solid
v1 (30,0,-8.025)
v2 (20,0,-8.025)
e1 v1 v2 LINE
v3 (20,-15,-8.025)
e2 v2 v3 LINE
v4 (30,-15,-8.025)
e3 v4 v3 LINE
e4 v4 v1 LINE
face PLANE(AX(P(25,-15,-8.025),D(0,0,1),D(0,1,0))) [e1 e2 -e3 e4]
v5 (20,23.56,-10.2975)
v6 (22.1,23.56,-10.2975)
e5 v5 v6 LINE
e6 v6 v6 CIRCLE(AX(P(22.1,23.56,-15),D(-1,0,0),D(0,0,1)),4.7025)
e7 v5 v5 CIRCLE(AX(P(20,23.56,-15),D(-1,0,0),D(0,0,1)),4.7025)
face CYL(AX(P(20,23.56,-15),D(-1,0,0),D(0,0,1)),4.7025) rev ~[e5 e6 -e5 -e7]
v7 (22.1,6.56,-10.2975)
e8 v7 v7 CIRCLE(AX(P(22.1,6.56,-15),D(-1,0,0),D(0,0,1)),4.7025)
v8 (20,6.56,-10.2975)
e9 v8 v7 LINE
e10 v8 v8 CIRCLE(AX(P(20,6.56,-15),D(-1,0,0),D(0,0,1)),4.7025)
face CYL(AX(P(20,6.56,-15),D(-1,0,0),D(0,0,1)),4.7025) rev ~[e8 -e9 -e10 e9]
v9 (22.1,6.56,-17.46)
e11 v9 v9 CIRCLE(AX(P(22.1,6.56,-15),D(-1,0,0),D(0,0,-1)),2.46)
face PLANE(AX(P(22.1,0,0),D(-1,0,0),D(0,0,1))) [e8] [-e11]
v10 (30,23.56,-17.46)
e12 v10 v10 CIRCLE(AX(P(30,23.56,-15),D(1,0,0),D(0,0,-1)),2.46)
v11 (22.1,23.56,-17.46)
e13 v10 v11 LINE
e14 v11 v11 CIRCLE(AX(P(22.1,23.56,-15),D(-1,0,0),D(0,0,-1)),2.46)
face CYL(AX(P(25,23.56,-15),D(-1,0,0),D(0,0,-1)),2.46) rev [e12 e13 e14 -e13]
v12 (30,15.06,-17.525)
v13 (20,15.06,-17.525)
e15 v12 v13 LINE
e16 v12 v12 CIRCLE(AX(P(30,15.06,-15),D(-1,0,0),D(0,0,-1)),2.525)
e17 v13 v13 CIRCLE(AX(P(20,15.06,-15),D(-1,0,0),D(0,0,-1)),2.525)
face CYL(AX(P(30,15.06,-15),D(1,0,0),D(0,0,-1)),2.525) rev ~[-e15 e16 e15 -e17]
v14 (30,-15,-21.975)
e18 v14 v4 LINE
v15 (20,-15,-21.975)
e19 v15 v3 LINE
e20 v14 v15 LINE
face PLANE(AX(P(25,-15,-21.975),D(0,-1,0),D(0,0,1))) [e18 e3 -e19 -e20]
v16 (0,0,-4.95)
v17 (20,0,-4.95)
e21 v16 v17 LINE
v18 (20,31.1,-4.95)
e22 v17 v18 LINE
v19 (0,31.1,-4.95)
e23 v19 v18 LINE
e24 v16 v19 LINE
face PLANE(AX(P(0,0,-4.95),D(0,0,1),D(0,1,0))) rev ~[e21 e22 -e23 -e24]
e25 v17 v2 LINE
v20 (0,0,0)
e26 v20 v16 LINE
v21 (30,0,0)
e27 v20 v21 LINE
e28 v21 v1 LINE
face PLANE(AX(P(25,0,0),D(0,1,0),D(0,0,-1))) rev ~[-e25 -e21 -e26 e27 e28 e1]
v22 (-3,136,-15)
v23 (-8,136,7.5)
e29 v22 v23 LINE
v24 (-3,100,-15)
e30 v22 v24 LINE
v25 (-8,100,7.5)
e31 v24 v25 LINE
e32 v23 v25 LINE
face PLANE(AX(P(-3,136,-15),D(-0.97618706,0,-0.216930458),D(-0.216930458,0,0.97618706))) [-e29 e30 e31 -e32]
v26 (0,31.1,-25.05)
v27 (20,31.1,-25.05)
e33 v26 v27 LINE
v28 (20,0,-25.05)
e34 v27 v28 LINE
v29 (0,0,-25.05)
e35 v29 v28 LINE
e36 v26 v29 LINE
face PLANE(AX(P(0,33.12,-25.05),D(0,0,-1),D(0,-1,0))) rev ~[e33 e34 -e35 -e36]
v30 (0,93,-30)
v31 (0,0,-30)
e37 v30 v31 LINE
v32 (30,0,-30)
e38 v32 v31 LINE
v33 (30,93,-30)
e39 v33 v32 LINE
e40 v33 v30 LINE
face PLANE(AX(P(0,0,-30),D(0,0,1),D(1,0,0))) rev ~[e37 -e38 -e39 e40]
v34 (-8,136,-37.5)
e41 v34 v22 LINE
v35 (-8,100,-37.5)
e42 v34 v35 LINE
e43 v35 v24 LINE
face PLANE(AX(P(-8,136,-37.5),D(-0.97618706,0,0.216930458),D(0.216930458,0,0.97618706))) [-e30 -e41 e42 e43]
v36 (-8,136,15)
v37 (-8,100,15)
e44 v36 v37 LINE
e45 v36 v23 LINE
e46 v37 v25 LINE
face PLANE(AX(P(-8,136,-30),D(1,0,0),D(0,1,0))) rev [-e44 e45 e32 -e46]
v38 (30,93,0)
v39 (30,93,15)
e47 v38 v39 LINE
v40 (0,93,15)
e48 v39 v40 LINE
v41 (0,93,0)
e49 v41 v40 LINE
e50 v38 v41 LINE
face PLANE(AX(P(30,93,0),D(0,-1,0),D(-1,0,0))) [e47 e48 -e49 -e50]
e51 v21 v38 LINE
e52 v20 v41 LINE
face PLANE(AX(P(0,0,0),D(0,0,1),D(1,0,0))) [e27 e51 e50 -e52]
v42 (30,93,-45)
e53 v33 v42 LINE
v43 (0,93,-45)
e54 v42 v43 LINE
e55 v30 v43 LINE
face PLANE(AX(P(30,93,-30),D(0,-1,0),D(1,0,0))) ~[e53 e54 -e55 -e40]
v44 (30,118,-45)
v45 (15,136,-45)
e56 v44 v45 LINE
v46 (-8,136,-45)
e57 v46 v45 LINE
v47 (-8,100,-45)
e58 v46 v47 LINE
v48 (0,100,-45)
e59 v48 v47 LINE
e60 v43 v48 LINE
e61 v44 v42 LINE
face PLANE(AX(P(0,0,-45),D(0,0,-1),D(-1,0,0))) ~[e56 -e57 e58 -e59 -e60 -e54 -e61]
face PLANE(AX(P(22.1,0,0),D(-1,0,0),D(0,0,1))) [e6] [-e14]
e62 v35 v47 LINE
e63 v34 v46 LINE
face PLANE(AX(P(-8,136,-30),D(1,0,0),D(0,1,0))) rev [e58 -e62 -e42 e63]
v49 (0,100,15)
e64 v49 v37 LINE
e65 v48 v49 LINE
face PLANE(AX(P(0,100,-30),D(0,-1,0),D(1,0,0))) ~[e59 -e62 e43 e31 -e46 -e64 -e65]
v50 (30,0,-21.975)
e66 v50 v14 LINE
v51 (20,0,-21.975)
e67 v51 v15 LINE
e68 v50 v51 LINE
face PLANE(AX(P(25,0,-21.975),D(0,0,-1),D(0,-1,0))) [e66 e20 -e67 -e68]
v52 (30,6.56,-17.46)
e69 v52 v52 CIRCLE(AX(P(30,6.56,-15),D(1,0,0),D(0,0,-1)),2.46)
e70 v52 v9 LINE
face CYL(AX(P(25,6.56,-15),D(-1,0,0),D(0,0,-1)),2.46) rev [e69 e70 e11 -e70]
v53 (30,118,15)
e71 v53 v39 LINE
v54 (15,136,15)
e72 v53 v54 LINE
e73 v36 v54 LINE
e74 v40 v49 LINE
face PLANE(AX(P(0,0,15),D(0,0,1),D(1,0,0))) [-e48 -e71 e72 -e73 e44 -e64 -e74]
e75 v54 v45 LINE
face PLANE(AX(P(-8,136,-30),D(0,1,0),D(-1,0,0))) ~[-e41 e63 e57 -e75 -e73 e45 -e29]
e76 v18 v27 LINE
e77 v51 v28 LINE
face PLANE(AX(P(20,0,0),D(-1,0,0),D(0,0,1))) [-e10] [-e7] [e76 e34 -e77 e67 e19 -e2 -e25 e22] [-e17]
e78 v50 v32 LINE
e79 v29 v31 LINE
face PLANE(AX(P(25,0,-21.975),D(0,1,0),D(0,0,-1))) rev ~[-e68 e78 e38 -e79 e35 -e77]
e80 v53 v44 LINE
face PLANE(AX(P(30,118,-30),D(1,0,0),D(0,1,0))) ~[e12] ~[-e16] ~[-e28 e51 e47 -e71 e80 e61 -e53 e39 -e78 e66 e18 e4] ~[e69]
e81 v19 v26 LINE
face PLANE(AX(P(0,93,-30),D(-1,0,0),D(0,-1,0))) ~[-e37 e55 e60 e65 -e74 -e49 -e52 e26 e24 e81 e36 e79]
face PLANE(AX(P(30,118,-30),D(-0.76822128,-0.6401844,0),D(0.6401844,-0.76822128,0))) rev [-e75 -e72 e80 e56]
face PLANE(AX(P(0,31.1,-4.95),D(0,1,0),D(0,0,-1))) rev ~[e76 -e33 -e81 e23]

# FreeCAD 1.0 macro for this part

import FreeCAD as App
import Part
import Sketcher

V = App.Vector
Q = App.Units.Quantity


def add_polygon(sketch, points):
    """Adds a closed chain of lines whose ends are joined by coincident constraints."""
    first, n = sketch.GeometryCount, len(points)
    for a, b in zip(points, points[1:] + points[:1]):
        sketch.addGeometry(Part.LineSegment(App.Vector(*a, 0), App.Vector(*b, 0)), False)
    for i in range(n):
        sketch.addConstraint(Sketcher.Constraint("Coincident", first + i, 2, first + (i + 1) % n, 1))

doc = App.newDocument("Part")
body = doc.addObject("PartDesign::Body", "Body")

sketch1 = body.newObject("Sketcher::SketchObject", "Sketch")
sketch1.AttachmentSupport = (doc.getObject("XY_Plane"), [""])
sketch1.MapMode = "FlatFace"
add_polygon(sketch1, [(0, 40), (0, 0), (25, 0), (25, 40)])
sketch1.addConstraint(Sketcher.Constraint("Vertical", 0))
sketch1.addConstraint(Sketcher.Constraint("Horizontal", 1))
sketch1.addConstraint(Sketcher.Constraint("Vertical", 2))
sketch1.addConstraint(Sketcher.Constraint("Horizontal", 3))
sketch1.addConstraint(Sketcher.Constraint("Coincident", 0, 2, -1, 1))
sketch1.addConstraint(Sketcher.Constraint("DistanceX", 1, 1, 1, 2, Q("25 mm")))
sketch1.addConstraint(Sketcher.Constraint("DistanceY", 0, 2, 0, 1, Q("40 mm")))
pad1 = body.newObject("PartDesign::Pad", "Pad")
pad1.Profile = sketch1
pad1.Length = 30
pad1.Reversed = True

sketch2 = body.newObject("Sketcher::SketchObject", "Sketch001")
sketch2.AttachmentSupport = (doc.getObject("YZ_Plane"), [""])
sketch2.MapMode = "FlatFace"
sketch2.AttachmentOffset = App.Placement(V(0, 0, 25), App.Rotation())
sketch2.addGeometry(Part.Circle(V(6.56, -15, 0), V(0, 0, 1), 2.46), False)
sketch2.addConstraint(Sketcher.Constraint("Diameter", 0, Q("4.92 mm")))
sketch2.addConstraint(Sketcher.Constraint("DistanceY", 0, 3, -1, 1, Q("15 mm")))
sketch2.addConstraint(Sketcher.Constraint("DistanceX", -1, 1, 0, 3, Q("6.56 mm")))
pocket1 = body.newObject("PartDesign::Pocket", "Pocket")
pocket1.Profile = sketch2
pocket1.Length = 30

sketch3 = body.newObject("Sketcher::SketchObject", "Sketch002")
sketch3.AttachmentSupport = (doc.getObject("YZ_Plane"), [""])
sketch3.MapMode = "FlatFace"
add_polygon(sketch3, [(0, -25.05), (0, -4.95), (33.12, -4.95), (33.12, -25.05)])
sketch3.addConstraint(Sketcher.Constraint("Vertical", 0))
sketch3.addConstraint(Sketcher.Constraint("Horizontal", 1))
sketch3.addConstraint(Sketcher.Constraint("Vertical", 2))
sketch3.addConstraint(Sketcher.Constraint("Horizontal", 3))
sketch3.addConstraint(Sketcher.Constraint("PointOnObject", 0, 2, -2))
sketch3.addConstraint(Sketcher.Constraint("DistanceY", 0, 1, 0, 2, Q("20.1 mm")))
sketch3.addConstraint(Sketcher.Constraint("DistanceX", 1, 1, 1, 2, Q("33.12 mm")))
sketch3.addConstraint(Sketcher.Constraint("DistanceY", 0, 2, -1, 1, Q("4.95 mm")))
pocket2 = body.newObject("PartDesign::Pocket", "Pocket001")
pocket2.Profile = sketch3
pocket2.Length = 20
pocket2.Reversed = True

sketch4 = body.newObject("Sketcher::SketchObject", "Sketch003")
sketch4.AttachmentSupport = (doc.getObject("XZ_Plane"), [""])
sketch4.MapMode = "FlatFace"
add_polygon(sketch4, [(25, -8.025), (20, -8.025), (20, -21.975), (25, -21.975)])
sketch4.addConstraint(Sketcher.Constraint("Horizontal", 0))
sketch4.addConstraint(Sketcher.Constraint("Vertical", 1))
sketch4.addConstraint(Sketcher.Constraint("Horizontal", 2))
sketch4.addConstraint(Sketcher.Constraint("Vertical", 3))
sketch4.addConstraint(Sketcher.Constraint("DistanceY", 1, 2, 1, 1, Q("13.95 mm")))
sketch4.addConstraint(Sketcher.Constraint("DistanceX", 0, 2, 0, 1, Q("5 mm")))
sketch4.addConstraint(Sketcher.Constraint("DistanceX", -1, 1, 0, 2, Q("20 mm")))
sketch4.addConstraint(Sketcher.Constraint("DistanceY", 0, 2, -1, 1, Q("8.025 mm")))
pad2 = body.newObject("PartDesign::Pad", "Pad001")
pad2.Profile = sketch4
pad2.Length = 15

sketch5 = body.newObject("Sketcher::SketchObject", "Sketch004")
sketch5.AttachmentSupport = (doc.getObject("YZ_Plane"), [""])
sketch5.MapMode = "FlatFace"
sketch5.AttachmentOffset = App.Placement(V(0, 0, 20), App.Rotation())
sketch5.addGeometry(Part.Circle(V(6.56, -15, 0), V(0, 0, 1), 4.7025), False)
sketch5.addGeometry(Part.Circle(V(6.56, -15, 0), V(0, 0, 1), 2.46), False)
sketch5.addConstraint(Sketcher.Constraint("Coincident", 1, 3, 0, 3))
sketch5.addConstraint(Sketcher.Constraint("Diameter", 0, Q("9.405 mm")))
sketch5.addConstraint(Sketcher.Constraint("Diameter", 1, Q("4.92 mm")))
sketch5.addConstraint(Sketcher.Constraint("DistanceY", 0, 3, -1, 1, Q("15 mm")))
sketch5.addConstraint(Sketcher.Constraint("DistanceX", -1, 1, 0, 3, Q("6.56 mm")))
pocket3 = body.newObject("PartDesign::Pocket", "Pocket002")
pocket3.Profile = sketch5
pocket3.Length = 2.1
pocket3.Reversed = True

sketch6 = body.newObject("Sketcher::SketchObject", "Sketch005")
sketch6.AttachmentSupport = (doc.getObject("YZ_Plane"), [""])
sketch6.MapMode = "FlatFace"
sketch6.AttachmentOffset = App.Placement(V(0, 0, 25), App.Rotation())
sketch6.addGeometry(Part.Circle(V(23.56, -15, 0), V(0, 0, 1), 2.46), False)
sketch6.addConstraint(Sketcher.Constraint("Diameter", 0, Q("4.92 mm")))
sketch6.addConstraint(Sketcher.Constraint("DistanceY", 0, 3, -1, 1, Q("15 mm")))
sketch6.addConstraint(Sketcher.Constraint("DistanceX", -1, 1, 0, 3, Q("23.56 mm")))
pocket4 = body.newObject("PartDesign::Pocket", "Pocket003")
pocket4.Profile = sketch6
pocket4.Length = 10

sketch7 = body.newObject("Sketcher::SketchObject", "Sketch006")
sketch7.AttachmentSupport = (doc.getObject("YZ_Plane"), [""])
sketch7.MapMode = "FlatFace"
sketch7.AttachmentOffset = App.Placement(V(0, 0, 20), App.Rotation())
sketch7.addGeometry(Part.Circle(V(23.56, -15, 0), V(0, 0, 1), 4.7025), False)
sketch7.addGeometry(Part.Circle(V(23.56, -15, 0), V(0, 0, 1), 2.46), False)
sketch7.addConstraint(Sketcher.Constraint("Coincident", 1, 3, 0, 3))
sketch7.addConstraint(Sketcher.Constraint("Diameter", 0, Q("9.405 mm")))
sketch7.addConstraint(Sketcher.Constraint("Diameter", 1, Q("4.92 mm")))
sketch7.addConstraint(Sketcher.Constraint("DistanceY", 0, 3, -1, 1, Q("15 mm")))
sketch7.addConstraint(Sketcher.Constraint("DistanceX", -1, 1, 0, 3, Q("23.56 mm")))
pocket5 = body.newObject("PartDesign::Pocket", "Pocket004")
pocket5.Profile = sketch7
pocket5.Length = 2.1
pocket5.Reversed = True

sketch8 = body.newObject("Sketcher::SketchObject", "Sketch007")
sketch8.AttachmentSupport = (doc.getObject("YZ_Plane"), [""])
sketch8.MapMode = "FlatFace"
sketch8.AttachmentOffset = App.Placement(V(0, 0, 25), App.Rotation())
add_polygon(sketch8, [(0, -30), (40, -30), (40, 0), (0, 0), (0, -8.025), (-15, -8.025), (-15, -21.975), (0, -21.975)])
sketch8.addGeometry(Part.Circle(V(6.56, -15, 0), V(0, 0, 1), 2.46), False)
sketch8.addGeometry(Part.Circle(V(23.56, -15, 0), V(0, 0, 1), 2.46), False)
sketch8.addConstraint(Sketcher.Constraint("Horizontal", 0))
sketch8.addConstraint(Sketcher.Constraint("Vertical", 1))
sketch8.addConstraint(Sketcher.Constraint("Horizontal", 2))
sketch8.addConstraint(Sketcher.Constraint("Vertical", 3))
sketch8.addConstraint(Sketcher.Constraint("Horizontal", 4))
sketch8.addConstraint(Sketcher.Constraint("Vertical", 5))
sketch8.addConstraint(Sketcher.Constraint("Horizontal", 6))
sketch8.addConstraint(Sketcher.Constraint("Vertical", 7))
sketch8.addConstraint(Sketcher.Constraint("Coincident", 2, 2, -1, 1))
sketch8.addConstraint(Sketcher.Constraint("Equal", 8, 9))
sketch8.addConstraint(Sketcher.Constraint("PointOnObject", 6, 2, -2))
sketch8.addConstraint(Sketcher.Constraint("Horizontal", 8, 3, 9, 3))
sketch8.addConstraint(Sketcher.Constraint("Equal", 3, 7))
sketch8.addConstraint(Sketcher.Constraint("Diameter", 8, Q("4.92 mm")))
sketch8.addConstraint(Sketcher.Constraint("DistanceX", 0, 1, 0, 2, Q("40 mm")))
sketch8.addConstraint(Sketcher.Constraint("DistanceX", 4, 2, 4, 1, Q("15 mm")))
sketch8.addConstraint(Sketcher.Constraint("DistanceY", 1, 1, 1, 2, Q("30 mm")))
sketch8.addConstraint(Sketcher.Constraint("DistanceY", 8, 3, -1, 1, Q("15 mm")))
sketch8.addConstraint(Sketcher.Constraint("DistanceX", 8, 3, 9, 3, Q("17 mm")))
sketch8.addConstraint(Sketcher.Constraint("DistanceY", 5, 2, 5, 1, Q("13.95 mm")))
sketch8.addConstraint(Sketcher.Constraint("DistanceX", -1, 1, 8, 3, Q("6.56 mm")))
pad3 = body.newObject("PartDesign::Pad", "Pad002")
pad3.Profile = sketch8
pad3.Length = 5

sketch9 = body.newObject("Sketcher::SketchObject", "Sketch008")
sketch9.AttachmentSupport = (doc.getObject("XZ_Plane"), [""])
sketch9.MapMode = "FlatFace"
sketch9.AttachmentOffset = App.Placement(V(0, 0, -40), App.Rotation())
add_polygon(sketch9, [(30, -30), (0, -30), (0, 0), (30, 0)])
sketch9.addConstraint(Sketcher.Constraint("Horizontal", 0))
sketch9.addConstraint(Sketcher.Constraint("Vertical", 1))
sketch9.addConstraint(Sketcher.Constraint("Horizontal", 2))
sketch9.addConstraint(Sketcher.Constraint("Vertical", 3))
sketch9.addConstraint(Sketcher.Constraint("Coincident", 1, 2, -1, 1))
sketch9.addConstraint(Sketcher.Constraint("Equal", 2, 1))
sketch9.addConstraint(Sketcher.Constraint("DistanceX", 0, 2, 0, 1, Q("30 mm")))
pad4 = body.newObject("PartDesign::Pad", "Pad003")
pad4.Profile = sketch9
pad4.Length = 30
pad4.Reversed = True

sketch10 = body.newObject("Sketcher::SketchObject", "Sketch009")
sketch10.AttachmentSupport = (doc.getObject("YZ_Plane"), [""])
sketch10.MapMode = "FlatFace"
sketch10.AttachmentOffset = App.Placement(V(0, 0, 30), App.Rotation())
sketch10.addGeometry(Part.Circle(V(15.06, -15, 0), V(0, 0, 1), 2.525), False)
sketch10.addConstraint(Sketcher.Constraint("Diameter", 0, Q("5.05 mm")))
sketch10.addConstraint(Sketcher.Constraint("DistanceY", 0, 3, -1, 1, Q("15 mm")))
sketch10.addConstraint(Sketcher.Constraint("DistanceX", -1, 1, 0, 3, Q("15.06 mm")))
pocket6 = body.newObject("PartDesign::Pocket", "Pocket005")
pocket6.Profile = sketch10
pocket6.Length = 30

sketch11 = body.newObject("Sketcher::SketchObject", "Sketch010")
sketch11.AttachmentSupport = (doc.getObject("XY_Plane"), [""])
sketch11.MapMode = "FlatFace"
add_polygon(sketch11, [(0, 70), (30, 70), (30, 118), (15, 136), (-8, 136), (-8, 100), (0, 100)])
sketch11.addConstraint(Sketcher.Constraint("Horizontal", 0))
sketch11.addConstraint(Sketcher.Constraint("Vertical", 1))
sketch11.addConstraint(Sketcher.Constraint("Horizontal", 3))
sketch11.addConstraint(Sketcher.Constraint("Vertical", 4))
sketch11.addConstraint(Sketcher.Constraint("Horizontal", 5))
sketch11.addConstraint(Sketcher.Constraint("Vertical", 6))
sketch11.addConstraint(Sketcher.Constraint("PointOnObject", 5, 2, -2))
sketch11.addConstraint(Sketcher.Constraint("Equal", 0, 6))
sketch11.addConstraint(Sketcher.Constraint("DistanceX", 0, 1, 0, 2, Q("30 mm")))
sketch11.addConstraint(Sketcher.Constraint("DistanceX", 3, 2, 3, 1, Q("23 mm")))
sketch11.addConstraint(Sketcher.Constraint("DistanceX", 5, 1, 5, 2, Q("8 mm")))
sketch11.addConstraint(Sketcher.Constraint("DistanceY", 1, 1, 1, 2, Q("48 mm")))
sketch11.addConstraint(Sketcher.Constraint("DistanceY", 4, 2, 4, 1, Q("36 mm")))
sketch11.addConstraint(Sketcher.Constraint("DistanceY", -1, 1, 0, 2, Q("70 mm")))
pad5 = body.newObject("PartDesign::Pad", "Pad004")
pad5.Profile = sketch11
pad5.Length = 30
pad5.Reversed = True

sketch12 = body.newObject("Sketcher::SketchObject", "Sketch011")
sketch12.AttachmentSupport = (doc.getObject("YZ_Plane"), [""])
sketch12.MapMode = "FlatFace"
add_polygon(sketch12, [(33.12, -4.95), (33.12, -25.05), (31.1, -25.05), (31.1, -4.95)])
sketch12.addConstraint(Sketcher.Constraint("Vertical", 0))
sketch12.addConstraint(Sketcher.Constraint("Horizontal", 1))
sketch12.addConstraint(Sketcher.Constraint("Vertical", 2))
sketch12.addConstraint(Sketcher.Constraint("Horizontal", 3))
sketch12.addConstraint(Sketcher.Constraint("DistanceX", 1, 2, 1, 1, Q("2.02 mm")))
sketch12.addConstraint(Sketcher.Constraint("DistanceY", 0, 2, 0, 1, Q("20.1 mm")))
sketch12.addConstraint(Sketcher.Constraint("DistanceX", -1, 1, 1, 2, Q("31.1 mm")))
sketch12.addConstraint(Sketcher.Constraint("DistanceY", 0, 2, -1, 1, Q("25.05 mm")))
pad6 = body.newObject("PartDesign::Pad", "Pad005")
pad6.Profile = sketch12
pad6.Length = 20

sketch13 = body.newObject("Sketcher::SketchObject", "Sketch012")
sketch13.AttachmentSupport = (doc.getObject("XY_Plane"), [""])
sketch13.MapMode = "FlatFace"
add_polygon(sketch13, [(-8, 100), (0, 100), (0, 93), (30, 93), (30, 118), (15, 136), (-8, 136)])
sketch13.addConstraint(Sketcher.Constraint("Horizontal", 0))
sketch13.addConstraint(Sketcher.Constraint("Vertical", 1))
sketch13.addConstraint(Sketcher.Constraint("Horizontal", 2))
sketch13.addConstraint(Sketcher.Constraint("Vertical", 3))
sketch13.addConstraint(Sketcher.Constraint("Horizontal", 5))
sketch13.addConstraint(Sketcher.Constraint("Vertical", 6))
sketch13.addConstraint(Sketcher.Constraint("PointOnObject", 0, 2, -2))
sketch13.addConstraint(Sketcher.Constraint("DistanceY", 3, 1, 3, 2, Q("25 mm")))
sketch13.addConstraint(Sketcher.Constraint("DistanceX", 0, 1, 0, 2, Q("8 mm")))
sketch13.addConstraint(Sketcher.Constraint("DistanceX", 2, 1, 2, 2, Q("30 mm")))
sketch13.addConstraint(Sketcher.Constraint("DistanceX", 5, 2, 5, 1, Q("23 mm")))
sketch13.addConstraint(Sketcher.Constraint("DistanceY", 1, 2, 1, 1, Q("7 mm")))
sketch13.addConstraint(Sketcher.Constraint("DistanceY", 6, 2, 6, 1, Q("36 mm")))
sketch13.addConstraint(Sketcher.Constraint("DistanceY", -1, 1, 0, 2, Q("100 mm")))
pad7 = body.newObject("PartDesign::Pad", "Pad006")
pad7.Profile = sketch13
pad7.Length = 15
doc.recompute()

datumplane = body.newObject("PartDesign::Plane", "DatumPlane")
datumplane.AttachmentSupport = (doc.getObject("XY_Plane"), [""])
datumplane.MapMode = "FlatFace"
datumplane.AttachmentOffset = App.Placement(V(0, 0, -15), App.Rotation())
mirrored = body.newObject("PartDesign::Mirrored", "Mirrored")
mirrored.Originals = [pad7]
mirrored.MirrorPlane = (datumplane, [""])
body.Tip = mirrored

sketch14 = body.newObject("Sketcher::SketchObject", "Sketch013")
sketch14.AttachmentSupport = (doc.getObject("XZ_Plane"), [""])
sketch14.MapMode = "FlatFace"
sketch14.AttachmentOffset = App.Placement(V(0, 0, -136), App.Rotation())
add_polygon(sketch14, [(-3, -15), (-8, -37.5), (-8, 7.5)])
sketch14.addConstraint(Sketcher.Constraint("Vertical", 1))
sketch14.addConstraint(Sketcher.Constraint("Equal", 0, 2))
sketch14.addConstraint(Sketcher.Constraint("DistanceY", 0, 2, 2, 2, Q("22.5 mm")))
sketch14.addConstraint(Sketcher.Constraint("DistanceX", 0, 2, -1, 1, Q("8 mm")))
sketch14.addConstraint(Sketcher.Constraint("DistanceX", 2, 2, -1, 1, Q("3 mm")))
sketch14.addConstraint(Sketcher.Constraint("DistanceY", 2, 2, -1, 1, Q("15 mm")))
pocket7 = body.newObject("PartDesign::Pocket", "Pocket006")
pocket7.Profile = sketch14
pocket7.Type = "ThroughAll"
pocket7.Reversed = True

doc.recompute()
